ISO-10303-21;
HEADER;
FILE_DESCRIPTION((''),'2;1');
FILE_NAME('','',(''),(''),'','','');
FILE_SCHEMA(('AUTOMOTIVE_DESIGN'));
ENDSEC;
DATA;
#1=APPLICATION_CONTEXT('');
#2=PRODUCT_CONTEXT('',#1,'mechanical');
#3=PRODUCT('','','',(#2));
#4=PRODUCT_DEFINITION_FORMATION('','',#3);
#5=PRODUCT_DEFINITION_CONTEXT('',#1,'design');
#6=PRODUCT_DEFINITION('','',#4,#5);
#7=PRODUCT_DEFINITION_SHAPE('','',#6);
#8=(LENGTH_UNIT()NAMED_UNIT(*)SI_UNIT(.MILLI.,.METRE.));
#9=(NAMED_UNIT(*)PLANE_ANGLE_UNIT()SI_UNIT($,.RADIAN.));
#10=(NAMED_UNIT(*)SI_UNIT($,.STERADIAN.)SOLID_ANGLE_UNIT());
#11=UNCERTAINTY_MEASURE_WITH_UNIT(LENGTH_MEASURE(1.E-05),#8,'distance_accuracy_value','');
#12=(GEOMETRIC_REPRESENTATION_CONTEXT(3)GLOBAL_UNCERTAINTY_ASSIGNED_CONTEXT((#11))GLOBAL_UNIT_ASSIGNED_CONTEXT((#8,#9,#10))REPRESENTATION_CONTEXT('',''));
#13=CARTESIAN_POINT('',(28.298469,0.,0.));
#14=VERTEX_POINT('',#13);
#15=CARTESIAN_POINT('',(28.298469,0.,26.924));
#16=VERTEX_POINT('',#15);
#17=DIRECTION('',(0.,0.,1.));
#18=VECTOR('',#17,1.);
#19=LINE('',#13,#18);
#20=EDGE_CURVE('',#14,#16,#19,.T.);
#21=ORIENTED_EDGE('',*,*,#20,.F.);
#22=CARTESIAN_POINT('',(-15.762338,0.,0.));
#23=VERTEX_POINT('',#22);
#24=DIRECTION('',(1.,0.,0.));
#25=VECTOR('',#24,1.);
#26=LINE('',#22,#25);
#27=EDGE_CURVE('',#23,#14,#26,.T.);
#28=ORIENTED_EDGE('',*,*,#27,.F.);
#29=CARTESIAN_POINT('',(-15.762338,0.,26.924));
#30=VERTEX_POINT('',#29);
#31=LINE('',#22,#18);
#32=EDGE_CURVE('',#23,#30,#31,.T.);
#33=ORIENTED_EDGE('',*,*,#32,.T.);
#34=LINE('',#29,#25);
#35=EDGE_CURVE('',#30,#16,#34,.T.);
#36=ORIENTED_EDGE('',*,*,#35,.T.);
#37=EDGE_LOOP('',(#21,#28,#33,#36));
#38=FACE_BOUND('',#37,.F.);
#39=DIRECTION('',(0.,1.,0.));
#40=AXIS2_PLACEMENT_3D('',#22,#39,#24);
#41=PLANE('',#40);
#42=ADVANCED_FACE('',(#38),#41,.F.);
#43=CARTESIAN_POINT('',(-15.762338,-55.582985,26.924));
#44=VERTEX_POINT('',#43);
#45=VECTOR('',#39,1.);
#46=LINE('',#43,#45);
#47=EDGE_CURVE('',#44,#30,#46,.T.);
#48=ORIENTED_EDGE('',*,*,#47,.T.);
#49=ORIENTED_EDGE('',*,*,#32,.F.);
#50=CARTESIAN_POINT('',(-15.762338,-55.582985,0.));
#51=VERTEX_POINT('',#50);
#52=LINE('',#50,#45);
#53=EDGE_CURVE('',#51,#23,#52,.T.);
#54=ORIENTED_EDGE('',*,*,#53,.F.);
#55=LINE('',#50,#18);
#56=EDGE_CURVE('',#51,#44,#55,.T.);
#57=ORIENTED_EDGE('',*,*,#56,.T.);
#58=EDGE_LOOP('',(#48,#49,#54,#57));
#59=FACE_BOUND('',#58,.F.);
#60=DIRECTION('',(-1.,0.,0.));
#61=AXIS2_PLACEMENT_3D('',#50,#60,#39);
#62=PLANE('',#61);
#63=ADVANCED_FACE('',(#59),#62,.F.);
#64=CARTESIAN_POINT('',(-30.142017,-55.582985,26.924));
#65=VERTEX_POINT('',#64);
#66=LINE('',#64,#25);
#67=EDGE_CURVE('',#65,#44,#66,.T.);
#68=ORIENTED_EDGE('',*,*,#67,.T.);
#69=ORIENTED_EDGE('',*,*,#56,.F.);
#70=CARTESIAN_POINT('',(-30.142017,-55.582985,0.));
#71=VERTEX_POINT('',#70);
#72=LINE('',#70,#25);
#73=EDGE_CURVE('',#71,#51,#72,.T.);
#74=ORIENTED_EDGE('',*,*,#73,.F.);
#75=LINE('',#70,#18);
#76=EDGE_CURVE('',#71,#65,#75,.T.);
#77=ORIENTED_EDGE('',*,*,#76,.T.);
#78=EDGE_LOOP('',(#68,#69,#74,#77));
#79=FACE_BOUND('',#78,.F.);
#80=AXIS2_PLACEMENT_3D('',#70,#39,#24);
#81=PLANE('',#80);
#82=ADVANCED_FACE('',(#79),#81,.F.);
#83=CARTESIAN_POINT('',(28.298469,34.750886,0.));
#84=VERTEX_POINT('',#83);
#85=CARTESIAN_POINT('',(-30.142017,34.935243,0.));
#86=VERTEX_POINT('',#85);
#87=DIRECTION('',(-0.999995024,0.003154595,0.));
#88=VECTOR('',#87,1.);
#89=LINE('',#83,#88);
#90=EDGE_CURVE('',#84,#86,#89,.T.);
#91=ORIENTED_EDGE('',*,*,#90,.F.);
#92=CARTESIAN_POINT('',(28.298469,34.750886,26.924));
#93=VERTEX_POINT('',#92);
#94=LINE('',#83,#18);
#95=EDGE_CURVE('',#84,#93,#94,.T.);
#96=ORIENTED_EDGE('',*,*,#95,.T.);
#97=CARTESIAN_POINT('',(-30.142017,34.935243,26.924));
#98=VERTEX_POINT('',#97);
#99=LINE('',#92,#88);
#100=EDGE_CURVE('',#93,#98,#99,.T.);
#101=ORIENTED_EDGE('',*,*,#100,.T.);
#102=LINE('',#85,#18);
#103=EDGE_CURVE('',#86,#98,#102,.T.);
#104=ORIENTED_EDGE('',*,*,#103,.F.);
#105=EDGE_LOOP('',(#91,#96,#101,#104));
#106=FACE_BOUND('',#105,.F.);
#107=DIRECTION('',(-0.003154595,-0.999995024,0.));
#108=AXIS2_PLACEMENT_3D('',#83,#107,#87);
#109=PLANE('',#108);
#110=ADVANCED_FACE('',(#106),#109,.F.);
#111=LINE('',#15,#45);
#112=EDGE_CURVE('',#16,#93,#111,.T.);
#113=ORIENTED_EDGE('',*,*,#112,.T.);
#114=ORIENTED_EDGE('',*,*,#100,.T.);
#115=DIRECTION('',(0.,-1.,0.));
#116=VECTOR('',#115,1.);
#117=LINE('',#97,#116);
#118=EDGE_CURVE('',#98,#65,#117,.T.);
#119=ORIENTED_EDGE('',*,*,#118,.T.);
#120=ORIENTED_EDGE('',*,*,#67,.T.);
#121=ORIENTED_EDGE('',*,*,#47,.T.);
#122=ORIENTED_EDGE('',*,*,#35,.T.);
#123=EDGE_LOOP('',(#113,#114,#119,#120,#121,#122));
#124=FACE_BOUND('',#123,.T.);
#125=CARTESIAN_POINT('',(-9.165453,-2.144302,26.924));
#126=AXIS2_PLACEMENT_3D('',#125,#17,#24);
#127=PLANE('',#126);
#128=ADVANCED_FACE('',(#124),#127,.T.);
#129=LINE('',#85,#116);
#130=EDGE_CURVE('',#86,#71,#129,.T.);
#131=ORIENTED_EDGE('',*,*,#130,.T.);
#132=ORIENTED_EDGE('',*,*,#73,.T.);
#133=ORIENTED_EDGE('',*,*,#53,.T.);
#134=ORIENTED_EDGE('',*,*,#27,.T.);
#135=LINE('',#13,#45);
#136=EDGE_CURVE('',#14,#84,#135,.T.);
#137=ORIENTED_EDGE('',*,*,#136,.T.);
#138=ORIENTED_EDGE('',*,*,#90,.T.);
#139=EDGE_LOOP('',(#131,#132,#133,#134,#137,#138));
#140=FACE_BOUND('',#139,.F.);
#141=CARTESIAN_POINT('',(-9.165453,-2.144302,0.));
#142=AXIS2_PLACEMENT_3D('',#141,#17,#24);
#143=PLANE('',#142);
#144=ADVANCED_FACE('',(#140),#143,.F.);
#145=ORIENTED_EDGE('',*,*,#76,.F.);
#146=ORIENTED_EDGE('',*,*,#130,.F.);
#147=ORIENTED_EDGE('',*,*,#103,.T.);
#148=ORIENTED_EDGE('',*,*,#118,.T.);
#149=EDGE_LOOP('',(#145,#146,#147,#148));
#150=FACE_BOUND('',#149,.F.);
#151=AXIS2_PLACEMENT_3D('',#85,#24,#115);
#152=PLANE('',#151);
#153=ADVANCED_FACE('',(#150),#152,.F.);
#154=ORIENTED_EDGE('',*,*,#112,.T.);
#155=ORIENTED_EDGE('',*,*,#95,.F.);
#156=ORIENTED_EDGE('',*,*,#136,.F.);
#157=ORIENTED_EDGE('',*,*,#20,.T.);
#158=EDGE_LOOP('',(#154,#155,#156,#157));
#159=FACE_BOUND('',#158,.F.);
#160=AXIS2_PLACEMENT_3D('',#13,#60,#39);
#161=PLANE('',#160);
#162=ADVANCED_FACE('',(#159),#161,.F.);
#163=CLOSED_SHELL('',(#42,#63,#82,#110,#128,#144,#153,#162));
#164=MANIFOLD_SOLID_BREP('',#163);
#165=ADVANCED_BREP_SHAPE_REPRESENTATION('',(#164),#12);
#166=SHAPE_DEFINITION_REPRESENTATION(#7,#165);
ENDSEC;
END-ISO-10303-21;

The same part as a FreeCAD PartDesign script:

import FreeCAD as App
import Part
import Sketcher
from FreeCAD import Vector
Q = App.Units.Quantity


def add_polygon(sketch, points):
    """Adds a closed chain of lines whose ends are joined by coincident constraints."""
    first, n = sketch.GeometryCount, len(points)
    for a, b in zip(points, points[1:] + points[:1]):
        sketch.addGeometry(Part.LineSegment(App.Vector(*a, 0), App.Vector(*b, 0)), False)
    for i in range(n):
        sketch.addConstraint(Sketcher.Constraint("Coincident", first + i, 2, first + (i + 1) % n, 1))

doc = App.newDocument("Part")
body = doc.addObject("PartDesign::Body", "Body")

sketch1 = body.newObject("Sketcher::SketchObject", "Sketch")
sketch1.AttachmentSupport = (doc.getObject("XY_Plane"), [""])
sketch1.MapMode = "FlatFace"
add_polygon(sketch1, [(28, 35), (-30, 35), (-30, -56), (-16, -56), (-16, 0), (28, 0)])
sketch1.addConstraint([
    Sketcher.Constraint("Vertical", 1),
    Sketcher.Constraint("Horizontal", 2),
    Sketcher.Constraint("Vertical", 3),
    Sketcher.Constraint("Horizontal", 4),
    Sketcher.Constraint("Vertical", 5),
    Sketcher.Constraint("PointOnObject", 3, 2, -1),
    Sketcher.Constraint("DistanceX", 2, 1, 2, 2, Q("14.379679 mm")),
    Sketcher.Constraint("DistanceX", 4, 1, 4, 2, Q("44.060807 mm")),
    Sketcher.Constraint("DistanceY", 1, 2, 1, 1, Q("90.518228 mm")),
    Sketcher.Constraint("DistanceY", 3, 1, 3, 2, Q("55.582985 mm")),
    Sketcher.Constraint("DistanceY", 5, 1, 5, 2, Q("34.750886 mm")),
    Sketcher.Constraint("DistanceX", -1, 1, 4, 2, Q("28.298469 mm")),
])
pad1 = body.newObject("PartDesign::Pad", "Pad")
pad1.Profile = sketch1
pad1.Length = Q("1.06 in")

sketch2 = body.newObject("Sketcher::SketchObject", "Sketch001")
sketch2.AttachmentSupport = (doc.getObject("XY_Plane"), [""])
sketch2.MapMode = "FlatFace"
sketch2.AttachmentOffset = App.Placement(Vector(0, 0, 1.06 * 25.4), App.Rotation())
add_polygon(sketch2, [(-14, 24), (-14, 8), (19, 8), (19, 24)])
sketch2.addConstraint([
    Sketcher.Constraint("Vertical", 0),
    Sketcher.Constraint("Horizontal", 1),
    Sketcher.Constraint("Vertical", 2),
    Sketcher.Constraint("Horizontal", 3),
    Sketcher.Constraint("DistanceX", 0, 2, -1, 1, Q("0.5625 in")),
    Sketcher.Constraint("DistanceX", 1, 1, 1, 2, Q("33.183874 mm")),
    Sketcher.Constraint("DistanceY", 0, 2, 0, 1, Q("15.670162 mm")),
    Sketcher.Constraint("DistanceY", -1, 1, 0, 2, Q("8.388145 mm")),
])
pad2 = body.newObject("PartDesign::Pad", "Pad001")
pad2.Profile = sketch2
pad2.Length = Q("0.43 in")
pad2.Reversed = True

doc.recompute()
